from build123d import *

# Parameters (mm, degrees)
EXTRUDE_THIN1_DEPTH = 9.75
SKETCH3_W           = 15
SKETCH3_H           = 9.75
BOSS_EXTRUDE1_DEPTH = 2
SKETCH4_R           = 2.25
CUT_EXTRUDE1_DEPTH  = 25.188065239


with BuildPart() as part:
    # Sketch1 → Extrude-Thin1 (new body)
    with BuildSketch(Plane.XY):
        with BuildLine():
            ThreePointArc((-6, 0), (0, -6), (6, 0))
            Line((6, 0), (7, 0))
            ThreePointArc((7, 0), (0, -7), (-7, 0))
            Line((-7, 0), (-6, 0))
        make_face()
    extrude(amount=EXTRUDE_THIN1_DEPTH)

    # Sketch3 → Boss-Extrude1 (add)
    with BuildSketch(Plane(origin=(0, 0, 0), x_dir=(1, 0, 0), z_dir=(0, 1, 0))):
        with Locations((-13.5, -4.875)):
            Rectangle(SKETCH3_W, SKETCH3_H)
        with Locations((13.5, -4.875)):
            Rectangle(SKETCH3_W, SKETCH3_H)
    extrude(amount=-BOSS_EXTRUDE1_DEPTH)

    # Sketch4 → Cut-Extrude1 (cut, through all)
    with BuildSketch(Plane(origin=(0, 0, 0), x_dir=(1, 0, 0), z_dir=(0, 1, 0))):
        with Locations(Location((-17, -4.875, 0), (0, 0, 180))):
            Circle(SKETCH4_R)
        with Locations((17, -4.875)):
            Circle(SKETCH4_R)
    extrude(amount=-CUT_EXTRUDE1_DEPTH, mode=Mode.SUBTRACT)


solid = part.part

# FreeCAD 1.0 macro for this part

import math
import FreeCAD as App
import Part
import Sketcher

V = App.Vector
Q = App.Units.Quantity


def add_polygon(sketch, points):
    """Adds a closed chain of lines whose ends are joined by coincident constraints."""
    first, n = sketch.GeometryCount, len(points)
    for a, b in zip(points, points[1:] + points[:1]):
        sketch.addGeometry(Part.LineSegment(App.Vector(*a, 0), App.Vector(*b, 0)), False)
    for i in range(n):
        sketch.addConstraint(Sketcher.Constraint("Coincident", first + i, 2, first + (i + 1) % n, 1))

doc = App.newDocument("Part")
body = doc.addObject("PartDesign::Body", "Body")

sketch1 = body.newObject("Sketcher::SketchObject", "Sketch")
sketch1.AttachmentSupport = (doc.getObject("XY_Plane"), [""])
sketch1.MapMode = "FlatFace"
sketch1.addGeometry([
    Part.ArcOfCircle(Part.Circle(V(0, 0, 0), V(0, 0, 1), 6), math.radians(180), math.radians(360)),
    Part.LineSegment(V(-6, 0, 0), V(-7, 0, 0)),
    Part.ArcOfCircle(Part.Circle(V(0, 0, 0), V(0, 0, 1), 7), math.radians(180), math.radians(360)),
    Part.LineSegment(V(7, 0, 0), V(6, 0, 0)),
], False)
sketch1.addConstraint([
    Sketcher.Constraint("Coincident", 0, 1, 1, 1),
    Sketcher.Constraint("Coincident", 1, 2, 2, 1),
    Sketcher.Constraint("Coincident", 2, 2, 3, 1),
    Sketcher.Constraint("Coincident", 3, 2, 0, 2),
    Sketcher.Constraint("Horizontal", 1),
    Sketcher.Constraint("Horizontal", 3),
    Sketcher.Constraint("Coincident", 0, 3, -1, 1),
    Sketcher.Constraint("Coincident", 2, 3, -1, 1),
    Sketcher.Constraint("PointOnObject", 0, 1, -1),
    Sketcher.Constraint("PointOnObject", 2, 2, -1),
    Sketcher.Constraint("Radius", 0, Q("6 mm")),
    Sketcher.Constraint("Radius", 2, Q("7 mm")),
])
pad1 = body.newObject("PartDesign::Pad", "Pad")
pad1.Profile = sketch1
pad1.Length = 9.75

sketch2 = body.newObject("Sketcher::SketchObject", "Sketch001")
sketch2.AttachmentSupport = (doc.getObject("XZ_Plane"), [""])
sketch2.MapMode = "FlatFace"
add_polygon(sketch2, [(-21, 0), (-21, 10), (-6, 10), (-6, 0)])
add_polygon(sketch2, [(6, 0), (6, 10), (21, 10), (21, 0)])
sketch2.addConstraint([
    Sketcher.Constraint("Vertical", 0),
    Sketcher.Constraint("Horizontal", 1),
    Sketcher.Constraint("Vertical", 2),
    Sketcher.Constraint("Horizontal", 3),
    Sketcher.Constraint("Vertical", 4),
    Sketcher.Constraint("Horizontal", 5),
    Sketcher.Constraint("Vertical", 6),
    Sketcher.Constraint("Horizontal", 7),
    Sketcher.Constraint("Symmetric", 3, 2, 6, 2, -1, 1),
    Sketcher.Constraint("Symmetric", 1, 2, 4, 2, -2),
    Sketcher.Constraint("PointOnObject", 2, 2, -1),
    Sketcher.Constraint("DistanceX", 1, 1, 1, 2, Q("15 mm")),
    Sketcher.Constraint("DistanceX", 0, 2, -1, 1, Q("21 mm")),
    Sketcher.Constraint("DistanceY", 0, 1, 0, 2, Q("9.75 mm")),
])
pad2 = body.newObject("PartDesign::Pad", "Pad001")
pad2.Profile = sketch2
pad2.Length = 2

sketch3 = body.newObject("Sketcher::SketchObject", "Sketch002")
sketch3.AttachmentSupport = (doc.getObject("XZ_Plane"), [""])
sketch3.MapMode = "FlatFace"
sketch3.addGeometry([
    Part.Circle(V(-17, 4.9, 0), V(0, 0, 1), 2.2),
    Part.Circle(V(17, 4.9, 0), V(0, 0, 1), 2.2),
], False)
sketch3.addConstraint([
    Sketcher.Constraint("Equal", 0, 1),
    Sketcher.Constraint("Symmetric", 0, 3, 1, 3, -2),
    Sketcher.Constraint("Diameter", 0, Q("4.5 mm")),
    Sketcher.Constraint("DistanceX", 0, 3, -1, 1, Q("17 mm")),
    Sketcher.Constraint("DistanceY", -1, 1, 0, 3, Q("4.875 mm")),
])
pocket1 = body.newObject("PartDesign::Pocket", "Pocket")
pocket1.Profile = sketch3
pocket1.Type = "ThroughAll"
pocket1.Reversed = True

doc.recompute()
